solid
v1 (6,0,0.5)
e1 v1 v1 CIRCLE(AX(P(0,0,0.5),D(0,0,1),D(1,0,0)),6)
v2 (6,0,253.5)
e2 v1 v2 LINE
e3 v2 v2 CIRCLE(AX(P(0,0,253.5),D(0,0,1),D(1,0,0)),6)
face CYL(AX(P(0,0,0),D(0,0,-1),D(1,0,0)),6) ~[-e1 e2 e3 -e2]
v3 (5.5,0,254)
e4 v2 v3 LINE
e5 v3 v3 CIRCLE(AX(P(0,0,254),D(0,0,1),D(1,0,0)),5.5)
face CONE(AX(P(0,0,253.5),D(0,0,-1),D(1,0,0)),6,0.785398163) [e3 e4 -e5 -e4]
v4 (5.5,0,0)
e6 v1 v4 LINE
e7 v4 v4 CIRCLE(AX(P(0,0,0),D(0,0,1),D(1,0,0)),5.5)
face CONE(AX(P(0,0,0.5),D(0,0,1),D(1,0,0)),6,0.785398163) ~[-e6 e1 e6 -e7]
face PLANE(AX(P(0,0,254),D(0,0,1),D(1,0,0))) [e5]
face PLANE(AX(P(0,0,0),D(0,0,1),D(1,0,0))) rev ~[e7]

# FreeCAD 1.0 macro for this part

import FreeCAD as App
import Part
import Sketcher
from FreeCAD import Vector


def edges_at(feature, points):
    """Names of the edges that pass closest to the given points."""
    edges = feature.Shape.Edges
    near = lambda p: min(range(len(edges)), key=lambda i: edges[i].distToShape(Part.Vertex(*p))[0])
    return sorted({f"Edge{near(p) + 1}" for p in points})

doc = App.newDocument("Part")
body = doc.addObject("PartDesign::Body", "Body")

# Sketch on XY plane
sketch1 = body.newObject("Sketcher::SketchObject", "Sketch")
sketch1.AttachmentSupport = (doc.getObject("XY_Plane"), [""])
sketch1.MapMode = "FlatFace"
sketch1.addGeometry(Part.Circle(Vector(0, 0, 0), Vector(0, 0, 1), 6), False)
sketch1.addConstraint([
    Sketcher.Constraint("Coincident", 0, 3, -1, 1),
    Sketcher.Constraint("Diameter", 0, 12.0),
])
pad1 = body.newObject("PartDesign::Pad", "Pad")
pad1.Profile = sketch1
pad1.Length = 254
doc.recompute()

chamfer = body.newObject("PartDesign::Chamfer", "Chamfer")
chamfer.Base = (pad1, edges_at(pad1, [(-6, 0, 254), (-6, 0, 0)]))
chamfer.Size = 0.5

doc.recompute()
